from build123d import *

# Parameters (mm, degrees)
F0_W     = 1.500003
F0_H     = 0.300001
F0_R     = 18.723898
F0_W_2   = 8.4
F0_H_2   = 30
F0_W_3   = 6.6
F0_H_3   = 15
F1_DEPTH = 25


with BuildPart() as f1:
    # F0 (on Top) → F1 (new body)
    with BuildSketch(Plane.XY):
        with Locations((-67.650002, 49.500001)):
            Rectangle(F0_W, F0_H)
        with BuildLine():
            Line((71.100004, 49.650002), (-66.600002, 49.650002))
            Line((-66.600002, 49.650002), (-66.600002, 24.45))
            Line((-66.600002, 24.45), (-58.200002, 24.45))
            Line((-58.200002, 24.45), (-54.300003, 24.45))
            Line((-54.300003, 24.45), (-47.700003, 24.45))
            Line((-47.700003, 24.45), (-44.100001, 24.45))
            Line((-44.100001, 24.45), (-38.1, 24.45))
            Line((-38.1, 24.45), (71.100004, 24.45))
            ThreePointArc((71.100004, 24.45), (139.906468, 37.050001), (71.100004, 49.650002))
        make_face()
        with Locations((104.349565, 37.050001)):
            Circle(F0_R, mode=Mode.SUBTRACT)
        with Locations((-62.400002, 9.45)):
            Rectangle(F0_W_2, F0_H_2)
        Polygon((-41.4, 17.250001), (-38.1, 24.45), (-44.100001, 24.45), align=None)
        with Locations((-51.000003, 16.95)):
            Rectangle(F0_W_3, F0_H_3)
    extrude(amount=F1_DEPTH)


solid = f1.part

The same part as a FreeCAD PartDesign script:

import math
import FreeCAD as App
import Part
import Sketcher
from FreeCAD import Vector
Q = App.Units.Quantity


def add_polygon(sketch, points):
    """Adds a closed chain of lines whose ends are joined by coincident constraints."""
    first, n = sketch.GeometryCount, len(points)
    for a, b in zip(points, points[1:] + points[:1]):
        sketch.addGeometry(Part.LineSegment(App.Vector(*a, 0), App.Vector(*b, 0)), False)
    for i in range(n):
        sketch.addConstraint(Sketcher.Constraint("Coincident", first + i, 2, first + (i + 1) % n, 1))

doc = App.newDocument("Part")
body = doc.addObject("PartDesign::Body", "Body")
body.AllowCompound = True

sketch1 = doc.addObject("Sketcher::SketchObject", "Sketch")
body.addObject(sketch1)
sketch1.AttachmentSupport = (doc.XY_Plane, [""])
sketch1.MapMode = "FlatFace"
add_polygon(sketch1, [(-68.400003, 49.650002), (-68.400003, 49.350001), (-66.900001, 49.350001), (-66.900001, 49.650002)])
sketch1.addGeometry(Part.LineSegment(Vector(71.100004, 49.650002, 0), Vector(-66.600002, 49.650002, 0)), False)
sketch1.addGeometry(Part.LineSegment(Vector(-66.600002, 49.650002, 0), Vector(-66.600002, -5.55, 0)), False)
sketch1.addGeometry(Part.LineSegment(Vector(-66.600002, -5.55, 0), Vector(-58.200002, -5.55, 0)), False)
sketch1.addGeometry(Part.LineSegment(Vector(-58.200002, -5.55, 0), Vector(-58.200002, 24.45, 0)), False)
sketch1.addGeometry(Part.LineSegment(Vector(-58.200002, 24.45, 0), Vector(-54.300003, 24.45, 0)), False)
sketch1.addGeometry(Part.LineSegment(Vector(-54.300003, 24.45, 0), Vector(-54.300003, 9.45, 0)), False)
sketch1.addGeometry(Part.LineSegment(Vector(-54.300003, 9.45, 0), Vector(-47.700003, 9.45, 0)), False)
sketch1.addGeometry(Part.LineSegment(Vector(-47.700003, 9.45, 0), Vector(-47.700003, 24.45, 0)), False)
sketch1.addGeometry(Part.LineSegment(Vector(-47.700003, 24.45, 0), Vector(-44.100001, 24.45, 0)), False)
sketch1.addGeometry(Part.LineSegment(Vector(-44.100001, 24.45, 0), Vector(-41.4, 17.250001, 0)), False)
sketch1.addGeometry(Part.LineSegment(Vector(-41.4, 17.250001, 0), Vector(-38.1, 24.45, 0)), False)
sketch1.addGeometry(Part.LineSegment(Vector(-38.1, 24.45, 0), Vector(71.100004, 24.45, 0)), False)
sketch1.addGeometry(Part.ArcOfCircle(Part.Circle(Vector(104.349565, 37.050001, 0), Vector(0, 0, 1), 35.556903), math.radians(-159.245677), math.radians(159.245677)), False)
sketch1.addGeometry(Part.Circle(Vector(104.349565, 37.050001, 0), Vector(0, 0, 1), 18.723898), False)
sketch1.addConstraint([
    Sketcher.Constraint("Coincident", 4, 2, 5, 1),
    Sketcher.Constraint("Coincident", 5, 2, 6, 1),
    Sketcher.Constraint("Coincident", 6, 2, 7, 1),
    Sketcher.Constraint("Coincident", 7, 2, 8, 1),
    Sketcher.Constraint("Coincident", 8, 2, 9, 1),
    Sketcher.Constraint("Coincident", 9, 2, 10, 1),
    Sketcher.Constraint("Coincident", 10, 2, 11, 1),
    Sketcher.Constraint("Coincident", 11, 2, 12, 1),
    Sketcher.Constraint("Coincident", 12, 2, 13, 1),
    Sketcher.Constraint("Coincident", 13, 2, 14, 1),
    Sketcher.Constraint("Coincident", 14, 2, 15, 1),
    Sketcher.Constraint("Coincident", 15, 2, 16, 1),
    Sketcher.Constraint("Coincident", 16, 2, 4, 1),
    Sketcher.Constraint("Vertical", 0),
    Sketcher.Constraint("Horizontal", 1),
    Sketcher.Constraint("Vertical", 2),
    Sketcher.Constraint("Horizontal", 3),
    Sketcher.Constraint("Horizontal", 4),
    Sketcher.Constraint("Vertical", 5),
    Sketcher.Constraint("Horizontal", 6),
    Sketcher.Constraint("Vertical", 7),
    Sketcher.Constraint("Horizontal", 8),
    Sketcher.Constraint("Vertical", 9),
    Sketcher.Constraint("Horizontal", 10),
    Sketcher.Constraint("Vertical", 11),
    Sketcher.Constraint("Horizontal", 12),
    Sketcher.Constraint("Horizontal", 15),
    Sketcher.Constraint("Coincident", 17, 3, 16, 3),
    Sketcher.Constraint("Horizontal", 3, 2, 4, 2),
    Sketcher.Constraint("Horizontal", 8, 2, 11, 2),
    Sketcher.Constraint("Horizontal", 12, 2, 14, 2),
    Sketcher.Constraint("Vertical", 15, 2, 16, 2),
    Sketcher.Constraint("DistanceY", 7, 1, 7, 2, Q("30 mm")),
    Sketcher.Constraint("DistanceY", 9, 2, 9, 1, Q("15 mm")),
    Sketcher.Constraint("DistanceX", 6, 1, 6, 2, Q("8.4 mm")),
    Sketcher.Constraint("DistanceX", 8, 1, 8, 2, Q("3.899999 mm")),
    Sketcher.Constraint("DistanceX", 10, 1, 10, 2, Q("6.6 mm")),
    Sketcher.Constraint("DistanceY", 0, 2, 0, 1, Q("0.300001 mm")),
    Sketcher.Constraint("DistanceY", 5, 2, 5, 1, Q("55.200002 mm")),
    Sketcher.Constraint("DistanceX", 12, 2, 14, 2, Q("6.000001 mm")),
    Sketcher.Constraint("DistanceX", 1, 2, -1, 1, Q("66.900001 mm")),
    Sketcher.Constraint("DistanceX", 6, 2, -1, 1, Q("58.200002 mm")),
    Sketcher.Constraint("DistanceX", 12, 2, -1, 1, Q("44.100001 mm")),
    Sketcher.Constraint("DistanceX", 13, 2, -1, 1, Q("41.4 mm")),
    Sketcher.Constraint("DistanceX", 3, 2, 4, 2, Q("1.800001 mm")),
    Sketcher.Constraint("DistanceY", 13, 2, 12, 2, Q("7.199999 mm")),
    Sketcher.Constraint("DistanceY", -1, 1, 16, 3, Q("37.050001 mm")),
    Sketcher.Constraint("Diameter", 17, Q("37.447796 mm")),
    Sketcher.Constraint("Radius", 16, Q("35.556903 mm")),
    Sketcher.Constraint("DistanceX", 4, 2, 4, 1, Q("137.700006 mm")),
])
pad1 = doc.addObject("PartDesign::Pad", "Pad")
body.addObject(pad1)
pad1.Profile = sketch1
pad1.Length = 25

doc.recompute()
